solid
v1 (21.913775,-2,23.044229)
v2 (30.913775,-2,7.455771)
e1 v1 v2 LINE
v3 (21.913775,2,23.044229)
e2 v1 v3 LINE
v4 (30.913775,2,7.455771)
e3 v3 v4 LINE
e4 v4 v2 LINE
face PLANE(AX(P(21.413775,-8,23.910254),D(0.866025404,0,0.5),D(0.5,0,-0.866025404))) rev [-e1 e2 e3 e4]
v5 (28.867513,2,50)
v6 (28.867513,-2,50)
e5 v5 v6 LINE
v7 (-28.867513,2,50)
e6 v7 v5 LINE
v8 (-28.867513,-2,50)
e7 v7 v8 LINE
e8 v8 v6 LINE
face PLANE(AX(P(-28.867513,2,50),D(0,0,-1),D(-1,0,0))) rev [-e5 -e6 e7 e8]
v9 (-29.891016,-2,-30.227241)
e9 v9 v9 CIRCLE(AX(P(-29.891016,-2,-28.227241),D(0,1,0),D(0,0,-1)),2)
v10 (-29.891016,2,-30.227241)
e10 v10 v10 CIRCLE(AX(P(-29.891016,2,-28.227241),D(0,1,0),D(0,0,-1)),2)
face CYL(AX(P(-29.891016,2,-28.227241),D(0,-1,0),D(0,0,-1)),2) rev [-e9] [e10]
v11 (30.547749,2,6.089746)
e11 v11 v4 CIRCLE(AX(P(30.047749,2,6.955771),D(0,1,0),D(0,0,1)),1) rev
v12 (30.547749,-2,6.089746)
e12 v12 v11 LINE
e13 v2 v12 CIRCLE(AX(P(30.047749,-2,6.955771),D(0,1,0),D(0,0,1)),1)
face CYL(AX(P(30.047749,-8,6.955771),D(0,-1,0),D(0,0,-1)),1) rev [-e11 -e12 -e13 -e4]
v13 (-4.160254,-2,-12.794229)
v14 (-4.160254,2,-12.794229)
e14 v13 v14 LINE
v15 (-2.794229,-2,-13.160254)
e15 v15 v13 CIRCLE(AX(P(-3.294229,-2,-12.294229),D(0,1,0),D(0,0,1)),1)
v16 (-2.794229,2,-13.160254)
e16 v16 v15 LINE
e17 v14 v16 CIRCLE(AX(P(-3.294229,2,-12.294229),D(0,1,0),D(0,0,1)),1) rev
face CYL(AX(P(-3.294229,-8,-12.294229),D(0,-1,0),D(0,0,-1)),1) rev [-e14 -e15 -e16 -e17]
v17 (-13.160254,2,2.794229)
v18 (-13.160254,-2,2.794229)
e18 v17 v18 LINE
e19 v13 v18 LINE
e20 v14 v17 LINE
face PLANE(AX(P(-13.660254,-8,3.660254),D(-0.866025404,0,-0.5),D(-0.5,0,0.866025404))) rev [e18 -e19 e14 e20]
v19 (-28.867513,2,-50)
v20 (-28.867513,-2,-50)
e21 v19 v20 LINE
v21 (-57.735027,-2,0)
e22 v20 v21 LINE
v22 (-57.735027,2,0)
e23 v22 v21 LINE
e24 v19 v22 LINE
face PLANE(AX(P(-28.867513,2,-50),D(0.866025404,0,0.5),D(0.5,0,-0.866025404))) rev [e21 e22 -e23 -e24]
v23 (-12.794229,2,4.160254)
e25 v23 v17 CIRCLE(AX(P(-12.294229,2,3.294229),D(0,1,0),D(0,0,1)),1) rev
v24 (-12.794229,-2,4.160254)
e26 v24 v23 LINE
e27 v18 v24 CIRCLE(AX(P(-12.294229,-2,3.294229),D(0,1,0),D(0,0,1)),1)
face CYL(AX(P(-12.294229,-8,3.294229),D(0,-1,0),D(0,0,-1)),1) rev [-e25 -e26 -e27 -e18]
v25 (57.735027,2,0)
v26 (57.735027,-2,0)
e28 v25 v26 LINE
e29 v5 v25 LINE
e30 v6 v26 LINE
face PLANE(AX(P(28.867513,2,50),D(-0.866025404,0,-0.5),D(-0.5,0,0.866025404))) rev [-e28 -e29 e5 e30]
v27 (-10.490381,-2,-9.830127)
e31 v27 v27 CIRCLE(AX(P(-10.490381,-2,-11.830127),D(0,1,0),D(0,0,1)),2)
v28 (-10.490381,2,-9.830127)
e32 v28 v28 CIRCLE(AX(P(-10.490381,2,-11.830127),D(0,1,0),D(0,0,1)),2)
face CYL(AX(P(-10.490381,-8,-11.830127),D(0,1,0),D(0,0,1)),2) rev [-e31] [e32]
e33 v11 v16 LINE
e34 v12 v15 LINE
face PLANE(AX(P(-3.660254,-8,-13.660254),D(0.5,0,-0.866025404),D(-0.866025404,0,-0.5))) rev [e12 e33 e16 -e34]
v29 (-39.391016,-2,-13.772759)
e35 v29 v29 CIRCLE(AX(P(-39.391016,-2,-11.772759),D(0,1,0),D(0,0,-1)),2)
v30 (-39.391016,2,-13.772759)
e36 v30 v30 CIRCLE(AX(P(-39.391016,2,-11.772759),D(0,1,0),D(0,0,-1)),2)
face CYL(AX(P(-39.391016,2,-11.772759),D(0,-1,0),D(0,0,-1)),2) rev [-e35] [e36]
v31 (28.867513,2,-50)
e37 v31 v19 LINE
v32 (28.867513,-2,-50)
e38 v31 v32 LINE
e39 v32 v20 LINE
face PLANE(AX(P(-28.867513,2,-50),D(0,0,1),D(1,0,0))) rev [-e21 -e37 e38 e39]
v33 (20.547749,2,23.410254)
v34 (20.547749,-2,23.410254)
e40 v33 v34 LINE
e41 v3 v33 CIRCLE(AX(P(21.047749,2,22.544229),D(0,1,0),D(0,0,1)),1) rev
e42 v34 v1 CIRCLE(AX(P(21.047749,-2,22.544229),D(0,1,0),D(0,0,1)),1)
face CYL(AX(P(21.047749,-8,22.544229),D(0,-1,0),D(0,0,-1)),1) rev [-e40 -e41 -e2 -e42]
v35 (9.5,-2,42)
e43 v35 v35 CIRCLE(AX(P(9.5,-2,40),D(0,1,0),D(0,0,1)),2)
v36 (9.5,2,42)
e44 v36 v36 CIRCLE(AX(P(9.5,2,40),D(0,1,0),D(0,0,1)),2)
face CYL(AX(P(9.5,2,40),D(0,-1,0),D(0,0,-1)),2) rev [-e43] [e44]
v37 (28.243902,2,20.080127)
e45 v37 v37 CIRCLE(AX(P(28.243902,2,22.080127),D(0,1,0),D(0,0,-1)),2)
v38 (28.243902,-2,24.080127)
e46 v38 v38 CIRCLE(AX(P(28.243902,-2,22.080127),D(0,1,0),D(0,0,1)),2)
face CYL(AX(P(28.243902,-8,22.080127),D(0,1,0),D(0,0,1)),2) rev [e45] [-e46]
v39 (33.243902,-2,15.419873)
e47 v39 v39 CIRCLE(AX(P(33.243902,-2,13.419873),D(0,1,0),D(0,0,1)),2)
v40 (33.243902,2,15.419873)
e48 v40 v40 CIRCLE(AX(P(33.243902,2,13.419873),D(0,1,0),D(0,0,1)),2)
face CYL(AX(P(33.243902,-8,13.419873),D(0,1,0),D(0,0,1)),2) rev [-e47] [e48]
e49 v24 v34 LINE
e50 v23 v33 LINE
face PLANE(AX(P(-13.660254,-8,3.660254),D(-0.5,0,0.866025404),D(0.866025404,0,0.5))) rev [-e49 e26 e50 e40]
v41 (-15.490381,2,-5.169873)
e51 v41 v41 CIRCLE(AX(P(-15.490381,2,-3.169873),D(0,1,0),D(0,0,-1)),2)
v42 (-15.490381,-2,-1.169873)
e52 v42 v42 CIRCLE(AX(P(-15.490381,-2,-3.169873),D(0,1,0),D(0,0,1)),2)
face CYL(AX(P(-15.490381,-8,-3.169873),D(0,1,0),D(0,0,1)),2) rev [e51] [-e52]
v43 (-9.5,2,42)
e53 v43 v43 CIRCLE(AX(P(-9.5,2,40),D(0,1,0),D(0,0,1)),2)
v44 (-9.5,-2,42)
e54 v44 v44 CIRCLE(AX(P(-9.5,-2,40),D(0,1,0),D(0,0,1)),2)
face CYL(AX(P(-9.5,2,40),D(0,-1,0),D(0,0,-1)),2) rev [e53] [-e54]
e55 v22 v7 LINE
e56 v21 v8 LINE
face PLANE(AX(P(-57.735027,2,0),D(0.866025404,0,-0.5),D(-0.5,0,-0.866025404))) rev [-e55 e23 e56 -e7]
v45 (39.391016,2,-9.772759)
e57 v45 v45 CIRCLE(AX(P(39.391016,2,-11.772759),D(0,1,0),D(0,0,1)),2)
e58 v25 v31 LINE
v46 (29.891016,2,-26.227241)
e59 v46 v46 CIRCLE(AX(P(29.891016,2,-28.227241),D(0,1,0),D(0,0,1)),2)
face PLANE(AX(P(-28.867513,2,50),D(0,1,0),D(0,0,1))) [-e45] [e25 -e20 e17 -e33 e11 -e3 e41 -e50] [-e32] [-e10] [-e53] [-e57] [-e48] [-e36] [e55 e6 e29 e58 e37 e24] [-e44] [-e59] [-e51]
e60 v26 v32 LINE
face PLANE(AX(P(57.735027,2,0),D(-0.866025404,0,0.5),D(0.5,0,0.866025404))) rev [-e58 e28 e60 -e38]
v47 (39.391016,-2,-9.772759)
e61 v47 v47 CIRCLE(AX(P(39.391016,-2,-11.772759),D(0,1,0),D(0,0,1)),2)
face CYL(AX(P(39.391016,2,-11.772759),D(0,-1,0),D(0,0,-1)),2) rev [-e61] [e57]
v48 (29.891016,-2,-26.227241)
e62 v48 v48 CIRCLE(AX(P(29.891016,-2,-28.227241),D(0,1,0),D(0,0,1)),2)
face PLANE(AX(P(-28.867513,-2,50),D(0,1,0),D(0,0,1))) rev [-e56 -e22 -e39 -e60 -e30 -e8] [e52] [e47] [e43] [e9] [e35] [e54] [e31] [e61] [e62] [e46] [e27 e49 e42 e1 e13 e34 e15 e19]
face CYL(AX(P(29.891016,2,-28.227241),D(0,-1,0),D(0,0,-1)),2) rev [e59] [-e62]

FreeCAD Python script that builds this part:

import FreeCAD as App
import Part
import Sketcher
from FreeCAD import Vector
Q = App.Units.Quantity


def edges_at(feature, points):
    """Names of the edges that pass closest to the given points."""
    edges = feature.Shape.Edges
    near = lambda p: min(range(len(edges)), key=lambda i: edges[i].distToShape(Part.Vertex(*p))[0])
    return sorted({f"Edge{near(p) + 1}" for p in points})

doc = App.newDocument("Part")
params = doc.addObject("Spreadsheet::Sheet", "Params")
for row, (alias, value) in enumerate([
    ("sketch1_diameter", "4 mm"),
    ("pad1_length", "4 mm"),
    ("sketch2_diameter", "4 mm"),
    ("sketch2_length", "20 mm"),
    ("sketch2_length2", "40.5 mm"),
    ("pocket1_length", "10 mm"),
    ("fillet_radius", "1 mm"),
], start=1):
    params.set(f"A{row}", alias)
    params.set(f"B{row}", "=" + value)
    params.setAlias(f"B{row}", alias)

body = doc.addObject("PartDesign::Body", "Body")

sketch1 = body.newObject("Sketcher::SketchObject", "Sketch")
sketch1.AttachmentSupport = (doc.getObject("XZ_Plane"), [""])
sketch1.MapMode = "FlatFace"
sketch1.addGeometry(Part.LineSegment(Vector(-28.9, -50, 0), Vector(-57.7, 0, 0)), False)
sketch1.addGeometry(Part.LineSegment(Vector(-57.7, 0, 0), Vector(-28.9, 50, 0)), False)
sketch1.addGeometry(Part.LineSegment(Vector(-28.9, 50, 0), Vector(28.9, 50, 0)), False)
sketch1.addGeometry(Part.LineSegment(Vector(28.9, 50, 0), Vector(57.7, 0, 0)), False)
sketch1.addGeometry(Part.LineSegment(Vector(57.7, 0, 0), Vector(28.9, -50, 0)), False)
sketch1.addGeometry(Part.LineSegment(Vector(28.9, -50, 0), Vector(-28.9, -50, 0)), False)
sketch1.addGeometry(Part.Circle(Vector(-9.5, 40, 0), Vector(0, 0, 1), 2), False)
sketch1.addGeometry(Part.Circle(Vector(9.5, 40, 0), Vector(0, 0, 1), 2), False)
sketch1.addGeometry(Part.Circle(Vector(-39.4, -11.8, 0), Vector(0, 0, 1), 2), False)
sketch1.addGeometry(Part.Circle(Vector(-29.9, -28.2, 0), Vector(0, 0, 1), 2), False)
sketch1.addGeometry(Part.Circle(Vector(39.4, -11.8, 0), Vector(0, 0, 1), 2), False)
sketch1.addGeometry(Part.Circle(Vector(29.9, -28.2, 0), Vector(0, 0, 1), 2), False)
sketch1.addConstraint(Sketcher.Constraint("Coincident", 0, 2, 1, 1))
sketch1.addConstraint(Sketcher.Constraint("Coincident", 1, 2, 2, 1))
sketch1.addConstraint(Sketcher.Constraint("Coincident", 2, 2, 3, 1))
sketch1.addConstraint(Sketcher.Constraint("Coincident", 3, 2, 4, 1))
sketch1.addConstraint(Sketcher.Constraint("Coincident", 4, 2, 5, 1))
sketch1.addConstraint(Sketcher.Constraint("Coincident", 5, 2, 0, 1))
sketch1.addConstraint(Sketcher.Constraint("Horizontal", 2))
sketch1.addConstraint(Sketcher.Constraint("Horizontal", 5))
sketch1.addConstraint(Sketcher.Constraint("Equal", 6, 7))
sketch1.addConstraint(Sketcher.Constraint("Equal", 7, 8))
sketch1.addConstraint(Sketcher.Constraint("Equal", 8, 9))
sketch1.addConstraint(Sketcher.Constraint("Equal", 9, 10))
sketch1.addConstraint(Sketcher.Constraint("Equal", 10, 11))
sketch1.addConstraint(Sketcher.Constraint("Symmetric", 0, 2, 3, 2, -1, 1))
sketch1.addConstraint(Sketcher.Constraint("Symmetric", 1, 2, 4, 2, -1, 1))
sketch1.addConstraint(Sketcher.Constraint("Symmetric", 6, 3, 7, 3, -2))
sketch1.addConstraint(Sketcher.Constraint("Symmetric", 8, 3, 10, 3, -2))
sketch1.addConstraint(Sketcher.Constraint("Symmetric", 9, 3, 11, 3, -2))
sketch1.addConstraint(Sketcher.Constraint("PointOnObject", 0, 2, -1))
sketch1.addConstraint(Sketcher.Constraint("Parallel", 0, 3))
sketch1.addConstraint(Sketcher.Constraint("Vertical", 2, 2, 4, 2))
sketch1.addConstraint(Sketcher.Constraint("Diameter", 6, Q("4 mm")))
sketch1.addConstraint(Sketcher.Constraint("Angle", 0, Q("120 deg")))
sketch1.addConstraint(Sketcher.Constraint("DistanceY", -1, 1, 6, 3, Q("40 mm")))
sketch1.addConstraint(Sketcher.Constraint("DistanceY", -1, 1, 1, 2, Q("50 mm")))
sketch1.addConstraint(Sketcher.Constraint("DistanceX", 6, 3, 7, 3, Q("19 mm")))
sketch1.addConstraint(Sketcher.Constraint("DistanceX", 8, 3, 9, 3, Q("9.5 mm")))
sketch1.addConstraint(Sketcher.Constraint("DistanceX", 2, 1, 2, 2, Q("57.735027 mm")))
sketch1.addConstraint(Sketcher.Constraint("DistanceY", 8, 3, -1, 1, Q("11.772759 mm")))
sketch1.addConstraint(Sketcher.Constraint("DistanceY", 9, 3, -1, 1, Q("28.227241 mm")))
sketch1.addConstraint(Sketcher.Constraint("DistanceX", 0, 2, 8, 3, Q("18.344011 mm")))
sketch1.setExpression("Constraints[21]", "Params.sketch1_diameter")
pad1 = body.newObject("PartDesign::Pad", "Pad")
pad1.Profile = sketch1
pad1.setExpression("Length", "Params.pad1_length")
pad1.Midplane = True

sketch2 = body.newObject("Sketcher::SketchObject", "Sketch001")
sketch2.AttachmentSupport = (doc.getObject("XZ_Plane"), [""])
sketch2.MapMode = "FlatFace"
sketch2.AttachmentOffset = App.Placement(Vector(0, 0, -2), App.Rotation())
sketch2.addGeometry(Part.Circle(Vector(-10.5, -11.8, 0), Vector(0, 0, 1), 2), False)
sketch2.addGeometry(Part.Circle(Vector(33.2, 13.4, 0), Vector(0, 0, 1), 2), False)
sketch2.addGeometry(Part.Circle(Vector(28.2, 22.1, 0), Vector(0, 0, 1), 2), False)
sketch2.addGeometry(Part.Circle(Vector(-15.5, -3.2, 0), Vector(0, 0, 1), 2), False)
sketch2.addGeometry(Part.LineSegment(Vector(-3.7, -13.7, 0), Vector(-13.7, 3.7, 0)), False)
sketch2.addGeometry(Part.LineSegment(Vector(-13.7, 3.7, 0), Vector(21.4, 23.9, 0)), False)
sketch2.addGeometry(Part.LineSegment(Vector(21.4, 23.9, 0), Vector(31.4, 6.6, 0)), False)
sketch2.addGeometry(Part.LineSegment(Vector(31.4, 6.6, 0), Vector(-3.7, -13.7, 0)), False)
sketch2.addConstraint(Sketcher.Constraint("Coincident", 4, 2, 5, 1))
sketch2.addConstraint(Sketcher.Constraint("Coincident", 5, 2, 6, 1))
sketch2.addConstraint(Sketcher.Constraint("Coincident", 6, 2, 7, 1))
sketch2.addConstraint(Sketcher.Constraint("Coincident", 7, 2, 4, 1))
sketch2.addConstraint(Sketcher.Constraint("Equal", 0, 1))
sketch2.addConstraint(Sketcher.Constraint("Equal", 1, 2))
sketch2.addConstraint(Sketcher.Constraint("Equal", 2, 3))
sketch2.addConstraint(Sketcher.Constraint("Perpendicular", 4, 5))
sketch2.addConstraint(Sketcher.Constraint("Perpendicular", 5, 6))
sketch2.addConstraint(Sketcher.Constraint("Perpendicular", 6, 7))
sketch2.addConstraint(Sketcher.Constraint("Diameter", 0, Q("4 mm")))
sketch2.addConstraint(Sketcher.Constraint("Angle", 4, Q("120 deg")))
sketch2.addConstraint(Sketcher.Constraint("Distance", 4, Q("20 mm")))
sketch2.addConstraint(Sketcher.Constraint("DistanceX", 2, 3, 1, 3, Q("5 mm")))
sketch2.addConstraint(Sketcher.Constraint("DistanceX", 3, 3, 0, 3, Q("5 mm")))
sketch2.addConstraint(Sketcher.Constraint("Distance", 5, Q("40.5 mm")))
sketch2.addConstraint(Sketcher.Constraint("DistanceY", 0, 3, 1, 3, Q("25.25 mm")))
sketch2.addConstraint(Sketcher.Constraint("DistanceY", 3, 3, 2, 3, Q("25.25 mm")))
sketch2.addConstraint(Sketcher.Constraint("DistanceX", -1, 1, 1, 3, Q("33.243902 mm")))
sketch2.addConstraint(Sketcher.Constraint("DistanceX", 0, 3, -1, 1, Q("10.490381 mm")))
sketch2.addConstraint(Sketcher.Constraint("DistanceY", 0, 3, 4, 2, Q("15.490381 mm")))
sketch2.addConstraint(Sketcher.Constraint("DistanceY", 6, 2, 2, 3, Q("15.490381 mm")))
sketch2.addConstraint(Sketcher.Constraint("DistanceY", 0, 3, -1, 1, Q("11.830127 mm")))
sketch2.addConstraint(Sketcher.Constraint("DistanceX", 4, 2, -1, 1, Q("13.660254 mm")))
sketch2.setExpression("Constraints[10]", "Params.sketch2_diameter")
sketch2.setExpression("Constraints[12]", "Params.sketch2_length")
sketch2.setExpression("Constraints[15]", "Params.sketch2_length2")
pocket1 = body.newObject("PartDesign::Pocket", "Pocket")
pocket1.Profile = sketch2
pocket1.setExpression("Length", "Params.pocket1_length")
pocket1.Reversed = True
doc.recompute()

fillet = body.newObject("PartDesign::Fillet", "Fillet")
fillet.Base = (pocket1, edges_at(pocket1, [
    (21.414, 0, 23.91),
    (-13.66, 0, 3.66),
    (-3.66, 0, -13.66),
    (31.414, 0, 6.59),
]))
fillet.setExpression("Radius", "Params.fillet_radius")

doc.recompute()
